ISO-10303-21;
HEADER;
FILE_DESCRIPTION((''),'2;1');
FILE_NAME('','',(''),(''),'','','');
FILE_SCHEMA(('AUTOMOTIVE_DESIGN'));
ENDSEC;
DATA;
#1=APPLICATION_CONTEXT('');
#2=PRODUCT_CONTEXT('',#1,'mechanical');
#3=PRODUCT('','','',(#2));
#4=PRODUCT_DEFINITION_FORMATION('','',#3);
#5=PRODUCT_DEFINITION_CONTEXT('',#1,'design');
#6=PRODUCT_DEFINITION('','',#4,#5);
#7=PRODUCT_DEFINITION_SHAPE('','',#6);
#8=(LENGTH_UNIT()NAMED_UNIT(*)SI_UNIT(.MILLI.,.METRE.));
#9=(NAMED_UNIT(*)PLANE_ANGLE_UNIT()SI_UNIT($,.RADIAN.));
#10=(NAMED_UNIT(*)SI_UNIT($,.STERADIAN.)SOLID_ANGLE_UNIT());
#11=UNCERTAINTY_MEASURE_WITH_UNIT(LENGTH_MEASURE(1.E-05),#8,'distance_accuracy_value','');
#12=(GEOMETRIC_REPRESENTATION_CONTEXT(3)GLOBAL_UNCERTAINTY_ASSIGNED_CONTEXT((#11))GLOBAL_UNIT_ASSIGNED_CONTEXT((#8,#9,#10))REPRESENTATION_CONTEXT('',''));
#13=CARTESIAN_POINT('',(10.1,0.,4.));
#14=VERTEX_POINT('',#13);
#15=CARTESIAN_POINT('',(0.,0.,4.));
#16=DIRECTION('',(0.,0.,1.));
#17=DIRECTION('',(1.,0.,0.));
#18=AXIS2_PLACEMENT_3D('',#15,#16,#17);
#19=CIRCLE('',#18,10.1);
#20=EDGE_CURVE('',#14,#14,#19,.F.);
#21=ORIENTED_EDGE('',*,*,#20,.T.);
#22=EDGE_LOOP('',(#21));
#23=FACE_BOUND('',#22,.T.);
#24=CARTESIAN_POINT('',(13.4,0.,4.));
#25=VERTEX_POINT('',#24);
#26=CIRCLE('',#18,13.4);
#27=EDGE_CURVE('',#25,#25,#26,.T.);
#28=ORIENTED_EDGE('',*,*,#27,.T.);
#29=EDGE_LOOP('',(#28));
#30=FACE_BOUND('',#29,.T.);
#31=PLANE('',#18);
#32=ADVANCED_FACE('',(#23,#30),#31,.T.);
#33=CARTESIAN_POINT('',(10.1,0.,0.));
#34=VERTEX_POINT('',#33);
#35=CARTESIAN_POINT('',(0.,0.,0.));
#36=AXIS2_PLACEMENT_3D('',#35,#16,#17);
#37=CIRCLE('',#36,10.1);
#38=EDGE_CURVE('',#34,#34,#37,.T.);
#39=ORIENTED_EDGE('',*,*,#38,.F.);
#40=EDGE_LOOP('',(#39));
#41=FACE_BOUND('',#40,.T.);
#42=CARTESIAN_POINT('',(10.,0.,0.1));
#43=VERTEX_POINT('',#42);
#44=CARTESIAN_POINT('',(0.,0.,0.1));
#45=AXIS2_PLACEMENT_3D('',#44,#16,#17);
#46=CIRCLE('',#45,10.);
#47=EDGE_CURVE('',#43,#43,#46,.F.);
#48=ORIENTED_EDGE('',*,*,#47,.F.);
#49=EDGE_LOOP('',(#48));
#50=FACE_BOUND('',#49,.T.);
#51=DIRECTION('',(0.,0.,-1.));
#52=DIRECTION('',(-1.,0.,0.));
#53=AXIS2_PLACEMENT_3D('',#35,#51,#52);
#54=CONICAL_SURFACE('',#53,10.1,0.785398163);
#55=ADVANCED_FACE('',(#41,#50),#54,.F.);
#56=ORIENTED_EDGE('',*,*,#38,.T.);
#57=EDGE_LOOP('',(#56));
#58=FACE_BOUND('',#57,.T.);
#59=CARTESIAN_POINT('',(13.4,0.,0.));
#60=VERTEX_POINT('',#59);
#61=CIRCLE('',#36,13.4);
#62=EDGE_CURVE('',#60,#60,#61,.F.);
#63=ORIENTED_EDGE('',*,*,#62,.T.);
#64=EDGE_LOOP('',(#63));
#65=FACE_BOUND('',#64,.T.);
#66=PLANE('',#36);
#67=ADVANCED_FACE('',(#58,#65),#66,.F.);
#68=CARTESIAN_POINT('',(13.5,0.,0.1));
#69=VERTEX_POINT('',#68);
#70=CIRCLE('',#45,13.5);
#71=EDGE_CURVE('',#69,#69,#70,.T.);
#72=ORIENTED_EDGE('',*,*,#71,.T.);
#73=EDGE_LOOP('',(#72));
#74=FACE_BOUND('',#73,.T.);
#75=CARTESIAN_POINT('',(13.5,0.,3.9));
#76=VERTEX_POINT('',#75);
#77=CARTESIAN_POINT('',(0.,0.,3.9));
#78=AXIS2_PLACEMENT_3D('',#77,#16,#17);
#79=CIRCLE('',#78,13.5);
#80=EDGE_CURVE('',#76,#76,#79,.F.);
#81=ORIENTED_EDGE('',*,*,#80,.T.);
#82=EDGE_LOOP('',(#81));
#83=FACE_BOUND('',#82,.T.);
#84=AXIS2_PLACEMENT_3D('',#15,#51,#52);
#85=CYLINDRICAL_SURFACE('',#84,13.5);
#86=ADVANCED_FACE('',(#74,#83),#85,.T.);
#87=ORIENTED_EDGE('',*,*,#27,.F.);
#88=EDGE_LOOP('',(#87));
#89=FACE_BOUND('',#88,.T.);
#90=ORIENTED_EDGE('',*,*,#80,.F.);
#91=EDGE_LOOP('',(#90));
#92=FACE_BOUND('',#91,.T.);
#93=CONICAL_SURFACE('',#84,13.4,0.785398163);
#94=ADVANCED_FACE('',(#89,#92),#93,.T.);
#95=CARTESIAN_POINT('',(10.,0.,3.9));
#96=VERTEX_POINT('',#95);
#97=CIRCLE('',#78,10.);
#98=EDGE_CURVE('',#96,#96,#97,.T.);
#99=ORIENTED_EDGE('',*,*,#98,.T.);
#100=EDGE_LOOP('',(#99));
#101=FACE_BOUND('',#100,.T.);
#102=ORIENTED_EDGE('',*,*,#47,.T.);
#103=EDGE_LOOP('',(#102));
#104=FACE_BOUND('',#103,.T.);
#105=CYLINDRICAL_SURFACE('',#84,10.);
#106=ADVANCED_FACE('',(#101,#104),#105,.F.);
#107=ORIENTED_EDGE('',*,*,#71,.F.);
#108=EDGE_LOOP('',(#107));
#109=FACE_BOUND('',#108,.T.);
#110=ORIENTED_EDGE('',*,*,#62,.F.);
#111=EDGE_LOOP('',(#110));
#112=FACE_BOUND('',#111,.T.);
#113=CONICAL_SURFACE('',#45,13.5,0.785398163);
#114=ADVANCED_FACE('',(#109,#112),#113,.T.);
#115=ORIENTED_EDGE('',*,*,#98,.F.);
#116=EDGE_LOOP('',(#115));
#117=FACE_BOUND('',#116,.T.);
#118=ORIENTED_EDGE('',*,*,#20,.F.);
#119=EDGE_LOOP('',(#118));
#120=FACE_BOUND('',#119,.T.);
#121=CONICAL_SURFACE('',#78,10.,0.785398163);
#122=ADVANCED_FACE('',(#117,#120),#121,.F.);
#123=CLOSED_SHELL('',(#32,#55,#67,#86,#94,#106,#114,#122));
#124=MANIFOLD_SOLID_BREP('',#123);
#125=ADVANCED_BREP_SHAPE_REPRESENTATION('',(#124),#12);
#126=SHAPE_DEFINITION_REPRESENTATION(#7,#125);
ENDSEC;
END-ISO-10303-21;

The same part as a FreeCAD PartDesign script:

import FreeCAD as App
import Part
import Sketcher

V = App.Vector
Q = App.Units.Quantity


def edges_at(feature, points):
    """Names of the edges that pass closest to the given points."""
    edges = feature.Shape.Edges
    near = lambda p: min(range(len(edges)), key=lambda i: edges[i].distToShape(Part.Vertex(*p))[0])
    return sorted({f"Edge{near(p) + 1}" for p in points})

doc = App.newDocument("Part")
body = doc.addObject("PartDesign::Body", "Body")

# Sketch on XY plane
sketch1 = body.newObject("Sketcher::SketchObject", "Sketch")
sketch1.AttachmentSupport = (doc.getObject("XY_Plane"), [""])
sketch1.MapMode = "FlatFace"
sketch1.addGeometry([
    Part.Circle(V(0, 0, 0), V(0, 0, 1), 14),
    Part.Circle(V(0, 0, 0), V(0, 0, 1), 10),
], False)
sketch1.addConstraint([
    Sketcher.Constraint("Coincident", 0, 3, -1, 1),
    Sketcher.Constraint("Coincident", 1, 3, -1, 1),
    Sketcher.Constraint("Diameter", 0, Q("27 mm")),
    Sketcher.Constraint("Diameter", 1, Q("20 mm")),
])
pad1 = body.newObject("PartDesign::Pad", "Pad")
pad1.Profile = sketch1
pad1.Length = 4
doc.recompute()

chamfer = body.newObject("PartDesign::Chamfer", "Chamfer")
chamfer.Base = (pad1, edges_at(pad1, [
    (-13.5, 0, 0),
    (-13.5, 0, 4),
    (-10, 0, 0),
    (-10, 0, 4),
]))
chamfer.Size = 0.1

doc.recompute()
